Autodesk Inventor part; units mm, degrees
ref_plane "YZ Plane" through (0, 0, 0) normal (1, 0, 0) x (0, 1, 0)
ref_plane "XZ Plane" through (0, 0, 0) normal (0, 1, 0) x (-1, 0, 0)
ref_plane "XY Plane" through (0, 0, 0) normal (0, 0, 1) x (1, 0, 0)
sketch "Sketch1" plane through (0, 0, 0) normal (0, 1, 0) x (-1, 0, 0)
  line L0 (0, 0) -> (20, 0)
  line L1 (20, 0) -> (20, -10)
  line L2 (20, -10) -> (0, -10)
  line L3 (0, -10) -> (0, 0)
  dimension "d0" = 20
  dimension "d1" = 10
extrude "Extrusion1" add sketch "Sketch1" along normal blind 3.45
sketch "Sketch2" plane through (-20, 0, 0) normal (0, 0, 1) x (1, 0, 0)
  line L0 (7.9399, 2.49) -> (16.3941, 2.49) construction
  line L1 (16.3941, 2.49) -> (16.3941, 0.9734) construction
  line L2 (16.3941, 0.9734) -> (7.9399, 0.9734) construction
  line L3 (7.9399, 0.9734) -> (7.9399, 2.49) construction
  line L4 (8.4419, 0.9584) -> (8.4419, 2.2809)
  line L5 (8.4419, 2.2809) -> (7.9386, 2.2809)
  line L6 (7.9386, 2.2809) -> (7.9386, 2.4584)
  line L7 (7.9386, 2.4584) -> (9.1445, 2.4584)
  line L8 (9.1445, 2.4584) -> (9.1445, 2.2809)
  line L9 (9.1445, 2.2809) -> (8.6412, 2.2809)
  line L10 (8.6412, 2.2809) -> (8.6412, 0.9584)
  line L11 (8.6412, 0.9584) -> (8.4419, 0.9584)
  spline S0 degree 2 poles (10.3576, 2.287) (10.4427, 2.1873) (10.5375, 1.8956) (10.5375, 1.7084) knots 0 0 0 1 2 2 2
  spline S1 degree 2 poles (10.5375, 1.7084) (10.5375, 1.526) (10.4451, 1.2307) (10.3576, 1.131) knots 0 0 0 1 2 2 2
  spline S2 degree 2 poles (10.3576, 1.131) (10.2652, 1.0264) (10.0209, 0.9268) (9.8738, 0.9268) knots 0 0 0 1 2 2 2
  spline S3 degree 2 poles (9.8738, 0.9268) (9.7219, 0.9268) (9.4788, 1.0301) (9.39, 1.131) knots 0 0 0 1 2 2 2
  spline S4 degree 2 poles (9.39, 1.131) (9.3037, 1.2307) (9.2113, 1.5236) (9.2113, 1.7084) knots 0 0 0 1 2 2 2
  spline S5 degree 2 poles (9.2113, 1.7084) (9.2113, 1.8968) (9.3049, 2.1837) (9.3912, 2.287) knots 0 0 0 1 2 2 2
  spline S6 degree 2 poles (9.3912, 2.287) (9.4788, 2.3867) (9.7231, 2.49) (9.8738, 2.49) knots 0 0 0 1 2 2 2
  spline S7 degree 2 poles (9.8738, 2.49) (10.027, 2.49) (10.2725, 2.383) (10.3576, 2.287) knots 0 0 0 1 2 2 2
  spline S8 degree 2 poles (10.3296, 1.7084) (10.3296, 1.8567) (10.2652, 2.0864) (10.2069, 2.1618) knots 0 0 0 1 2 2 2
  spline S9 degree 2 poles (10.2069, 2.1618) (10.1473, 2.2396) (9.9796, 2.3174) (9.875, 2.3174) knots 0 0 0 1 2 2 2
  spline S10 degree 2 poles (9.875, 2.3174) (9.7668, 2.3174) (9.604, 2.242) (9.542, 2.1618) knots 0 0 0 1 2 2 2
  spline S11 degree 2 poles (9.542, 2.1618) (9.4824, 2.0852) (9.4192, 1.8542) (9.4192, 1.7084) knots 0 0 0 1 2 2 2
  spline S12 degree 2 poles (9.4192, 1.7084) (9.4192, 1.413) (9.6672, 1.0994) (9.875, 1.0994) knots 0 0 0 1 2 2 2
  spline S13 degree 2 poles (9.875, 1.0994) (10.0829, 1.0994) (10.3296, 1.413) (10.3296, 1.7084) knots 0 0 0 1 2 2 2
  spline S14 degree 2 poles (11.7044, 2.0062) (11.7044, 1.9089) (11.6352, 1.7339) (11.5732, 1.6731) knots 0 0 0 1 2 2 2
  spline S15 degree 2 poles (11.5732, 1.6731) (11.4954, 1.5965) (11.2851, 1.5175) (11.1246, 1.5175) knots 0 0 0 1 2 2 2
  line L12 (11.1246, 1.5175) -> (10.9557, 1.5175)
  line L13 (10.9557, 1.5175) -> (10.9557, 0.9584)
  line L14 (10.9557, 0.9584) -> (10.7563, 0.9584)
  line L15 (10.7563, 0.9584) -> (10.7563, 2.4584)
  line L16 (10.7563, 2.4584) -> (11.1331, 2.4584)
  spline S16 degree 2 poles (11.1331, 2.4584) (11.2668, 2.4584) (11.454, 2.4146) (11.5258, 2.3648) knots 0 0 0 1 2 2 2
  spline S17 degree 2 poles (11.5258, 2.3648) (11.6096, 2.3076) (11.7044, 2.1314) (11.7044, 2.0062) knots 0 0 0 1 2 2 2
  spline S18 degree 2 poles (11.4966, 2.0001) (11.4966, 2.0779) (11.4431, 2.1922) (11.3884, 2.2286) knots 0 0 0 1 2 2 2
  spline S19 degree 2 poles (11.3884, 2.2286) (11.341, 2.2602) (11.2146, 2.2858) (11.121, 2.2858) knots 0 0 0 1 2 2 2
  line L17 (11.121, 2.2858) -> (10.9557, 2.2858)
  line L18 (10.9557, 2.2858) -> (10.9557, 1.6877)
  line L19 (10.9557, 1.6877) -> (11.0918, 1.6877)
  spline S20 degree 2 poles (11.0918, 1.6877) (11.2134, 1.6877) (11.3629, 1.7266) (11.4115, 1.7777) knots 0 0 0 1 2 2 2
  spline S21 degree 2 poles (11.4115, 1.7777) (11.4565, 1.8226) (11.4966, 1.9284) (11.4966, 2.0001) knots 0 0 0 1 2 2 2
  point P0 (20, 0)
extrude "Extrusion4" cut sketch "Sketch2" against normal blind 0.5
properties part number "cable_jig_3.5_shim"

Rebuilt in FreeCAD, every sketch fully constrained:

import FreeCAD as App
import Part
import Sketcher
from FreeCAD import Vector
Q = App.Units.Quantity

doc = App.newDocument("Part")
params = doc.addObject("Spreadsheet::Sheet", "Params")
for row, (alias, value) in enumerate([
    ("sketch1_width", "20 mm"),
    ("sketch1_height", "10 mm"),
    ("pad1_length", "3.45 mm"),
    ("sketch2_height", "1.5 mm"),
    ("pocket1_length", "0.5 mm"),
], start=1):
    params.set(f"A{row}", alias)
    params.set(f"B{row}", "=" + value)
    params.setAlias(f"B{row}", alias)

body = doc.addObject("PartDesign::Body", "Body")

# Sketch on XZ plane
sketch1 = body.newObject("Sketcher::SketchObject", "Sketch")
sketch1.AttachmentSupport = (doc.getObject("XZ_Plane"), [""])
sketch1.MapMode = "FlatFace"
sketch1.addGeometry([
    Part.LineSegment(Vector(-20, 0, 0), Vector(0, 0, 0)),
    Part.LineSegment(Vector(0, 0, 0), Vector(0, -10, 0)),
    Part.LineSegment(Vector(0, -10, 0), Vector(-20, -10, 0)),
    Part.LineSegment(Vector(-20, -10, 0), Vector(-20, 0, 0)),
], False)
sketch1.addConstraint([
    Sketcher.Constraint("Coincident", 0, 2, 1, 1),
    Sketcher.Constraint("Coincident", 1, 2, 2, 1),
    Sketcher.Constraint("Coincident", 2, 2, 3, 1),
    Sketcher.Constraint("Coincident", 3, 2, 0, 1),
    Sketcher.Constraint("Horizontal", 0),
    Sketcher.Constraint("Vertical", 1),
    Sketcher.Constraint("Horizontal", 2),
    Sketcher.Constraint("Vertical", 3),
    Sketcher.Constraint("Coincident", 0, 2, -1, 1),
    Sketcher.Constraint("DistanceX", 0, 1, 0, 2, Q("20 mm")),
    Sketcher.Constraint("DistanceY", 1, 2, 1, 1, Q("10 mm")),
])
sketch1.setExpression("Constraints[9]", "Params.sketch1_width")
sketch1.setExpression("Constraints[10]", "Params.sketch1_height")
pad1 = body.newObject("PartDesign::Pad", "Pad")
pad1.Profile = sketch1
pad1.setExpression("Length", "Params.pad1_length")
pad1.Reversed = True

# Sketch on XY plane
sketch2 = body.newObject("Sketcher::SketchObject", "Sketch001")
sketch2.AttachmentSupport = (doc.getObject("XY_Plane"), [""])
sketch2.MapMode = "FlatFace"
sketch2.addGeometry([
    Part.LineSegment(Vector(-11.5581, 2.2809, 0), Vector(-11.5581, 0.9584, 0)),  # 0
    Part.LineSegment(Vector(-11.5581, 0.9584, 0), Vector(-11.3588, 0.9584, 0)),  # 1
    Part.LineSegment(Vector(-11.3588, 0.9584, 0), Vector(-11.3588, 2.2809, 0)),  # 2
    Part.LineSegment(Vector(-11.3588, 2.2809, 0), Vector(-10.8555, 2.2809, 0)),  # 3
    Part.LineSegment(Vector(-10.8555, 2.2809, 0), Vector(-10.8555, 2.4584, 0)),  # 4
    Part.LineSegment(Vector(-10.8555, 2.4584, 0), Vector(-12.0614, 2.4584, 0)),  # 5
    Part.LineSegment(Vector(-12.0614, 2.4584, 0), Vector(-12.0614, 2.2809, 0)),  # 6
    Part.LineSegment(Vector(-12.0614, 2.2809, 0), Vector(-11.5581, 2.2809, 0)),  # 7
    Part.BSplineCurve([Vector(-9.6424, 2.287, 0), Vector(-9.5573, 2.1873, 0), Vector(-9.4625, 1.8956, 0), Vector(-9.4625, 1.7084, 0)], [3, 1, 3], [0, 1, 2], False, 2, [1, 1, 1, 1], False),  # 8
    Part.BSplineCurve([Vector(-10.1262, 2.49, 0), Vector(-9.973, 2.49, 0), Vector(-9.7275, 2.383, 0), Vector(-9.6424, 2.287, 0)], [3, 1, 3], [0, 1, 2], False, 2, [1, 1, 1, 1], False),  # 9
    Part.BSplineCurve([Vector(-10.6088, 2.287, 0), Vector(-10.5212, 2.3867, 0), Vector(-10.2769, 2.49, 0), Vector(-10.1262, 2.49, 0)], [3, 1, 3], [0, 1, 2], False, 2, [1, 1, 1, 1], False),  # 10
    Part.BSplineCurve([Vector(-10.7887, 1.7084, 0), Vector(-10.7887, 1.8968, 0), Vector(-10.6951, 2.1837, 0), Vector(-10.6088, 2.287, 0)], [3, 1, 3], [0, 1, 2], False, 2, [1, 1, 1, 1], False),  # 11
    Part.BSplineCurve([Vector(-10.61, 1.131, 0), Vector(-10.6963, 1.2307, 0), Vector(-10.7887, 1.5236, 0), Vector(-10.7887, 1.7084, 0)], [3, 1, 3], [0, 1, 2], False, 2, [1, 1, 1, 1], False),  # 12
    Part.BSplineCurve([Vector(-10.1262, 0.9268, 0), Vector(-10.2781, 0.9268, 0), Vector(-10.5212, 1.0301, 0), Vector(-10.61, 1.131, 0)], [3, 1, 3], [0, 1, 2], False, 2, [1, 1, 1, 1], False),  # 13
    Part.BSplineCurve([Vector(-9.6424, 1.131, 0), Vector(-9.7348, 1.0264, 0), Vector(-9.9791, 0.9268, 0), Vector(-10.1262, 0.9268, 0)], [3, 1, 3], [0, 1, 2], False, 2, [1, 1, 1, 1], False),  # 14
    Part.BSplineCurve([Vector(-9.4625, 1.7084, 0), Vector(-9.4625, 1.526, 0), Vector(-9.5549, 1.2307, 0), Vector(-9.6424, 1.131, 0)], [3, 1, 3], [0, 1, 2], False, 2, [1, 1, 1, 1], False),  # 15
    Part.BSplineCurve([Vector(-9.6704, 1.7084, 0), Vector(-9.6704, 1.8567, 0), Vector(-9.7348, 2.0864, 0), Vector(-9.7931, 2.1618, 0)], [3, 1, 3], [0, 1, 2], False, 2, [1, 1, 1, 1], False),  # 16
    Part.BSplineCurve([Vector(-10.125, 1.0994, 0), Vector(-9.9171, 1.0994, 0), Vector(-9.6704, 1.413, 0), Vector(-9.6704, 1.7084, 0)], [3, 1, 3], [0, 1, 2], False, 2, [1, 1, 1, 1], False),  # 17
    Part.BSplineCurve([Vector(-10.5808, 1.7084, 0), Vector(-10.5808, 1.413, 0), Vector(-10.3328, 1.0994, 0), Vector(-10.125, 1.0994, 0)], [3, 1, 3], [0, 1, 2], False, 2, [1, 1, 1, 1], False),  # 18
    Part.BSplineCurve([Vector(-10.458, 2.1618, 0), Vector(-10.5176, 2.0852, 0), Vector(-10.5808, 1.8542, 0), Vector(-10.5808, 1.7084, 0)], [3, 1, 3], [0, 1, 2], False, 2, [1, 1, 1, 1], False),  # 19
    Part.BSplineCurve([Vector(-10.125, 2.3174, 0), Vector(-10.2332, 2.3174, 0), Vector(-10.396, 2.242, 0), Vector(-10.458, 2.1618, 0)], [3, 1, 3], [0, 1, 2], False, 2, [1, 1, 1, 1], False),  # 20
    Part.BSplineCurve([Vector(-9.7931, 2.1618, 0), Vector(-9.8527, 2.2396, 0), Vector(-10.0204, 2.3174, 0), Vector(-10.125, 2.3174, 0)], [3, 1, 3], [0, 1, 2], False, 2, [1, 1, 1, 1], False),  # 21
    Part.BSplineCurve([Vector(-8.2956, 2.0062, 0), Vector(-8.2956, 1.9089, 0), Vector(-8.3648, 1.7339, 0), Vector(-8.4268, 1.6731, 0)], [3, 1, 3], [0, 1, 2], False, 2, [1, 1, 1, 1], False),  # 22
    Part.BSplineCurve([Vector(-8.4742, 2.3648, 0), Vector(-8.3904, 2.3076, 0), Vector(-8.2956, 2.1314, 0), Vector(-8.2956, 2.0062, 0)], [3, 1, 3], [0, 1, 2], False, 2, [1, 1, 1, 1], False),  # 23
    Part.BSplineCurve([Vector(-8.8669, 2.4584, 0), Vector(-8.7332, 2.4584, 0), Vector(-8.546, 2.4146, 0), Vector(-8.4742, 2.3648, 0)], [3, 1, 3], [0, 1, 2], False, 2, [1, 1, 1, 1], False),  # 24
    Part.LineSegment(Vector(-8.8669, 2.4584, 0), Vector(-9.2437, 2.4584, 0)),  # 25
    Part.LineSegment(Vector(-9.2437, 2.4584, 0), Vector(-9.2437, 0.9584, 0)),  # 26
    Part.LineSegment(Vector(-9.2437, 0.9584, 0), Vector(-9.0443, 0.9584, 0)),  # 27
    Part.LineSegment(Vector(-9.0443, 0.9584, 0), Vector(-9.0443, 1.5175, 0)),  # 28
    Part.LineSegment(Vector(-9.0443, 1.5175, 0), Vector(-8.8754, 1.5175, 0)),  # 29
    Part.BSplineCurve([Vector(-8.4268, 1.6731, 0), Vector(-8.5046, 1.5965, 0), Vector(-8.7149, 1.5175, 0), Vector(-8.8754, 1.5175, 0)], [3, 1, 3], [0, 1, 2], False, 2, [1, 1, 1, 1], False),  # 30
    Part.BSplineCurve([Vector(-8.5034, 2.0001, 0), Vector(-8.5034, 2.0779, 0), Vector(-8.5569, 2.1922, 0), Vector(-8.6116, 2.2286, 0)], [3, 1, 3], [0, 1, 2], False, 2, [1, 1, 1, 1], False),  # 31
    Part.BSplineCurve([Vector(-8.5885, 1.7777, 0), Vector(-8.5435, 1.8226, 0), Vector(-8.5034, 1.9284, 0), Vector(-8.5034, 2.0001, 0)], [3, 1, 3], [0, 1, 2], False, 2, [1, 1, 1, 1], False),  # 32
    Part.BSplineCurve([Vector(-8.9082, 1.6877, 0), Vector(-8.7866, 1.6877, 0), Vector(-8.6371, 1.7266, 0), Vector(-8.5885, 1.7777, 0)], [3, 1, 3], [0, 1, 2], False, 2, [1, 1, 1, 1], False),  # 33
    Part.LineSegment(Vector(-8.9082, 1.6877, 0), Vector(-9.0443, 1.6877, 0)),  # 34
    Part.LineSegment(Vector(-9.0443, 1.6877, 0), Vector(-9.0443, 2.2858, 0)),  # 35
    Part.LineSegment(Vector(-9.0443, 2.2858, 0), Vector(-8.879, 2.2858, 0)),  # 36
    Part.BSplineCurve([Vector(-8.6116, 2.2286, 0), Vector(-8.659, 2.2602, 0), Vector(-8.7854, 2.2858, 0), Vector(-8.879, 2.2858, 0)], [3, 1, 3], [0, 1, 2], False, 2, [1, 1, 1, 1], False),  # 37
], False)
sketch2.addConstraint([
    Sketcher.Constraint("Block", 8),
    Sketcher.Constraint("Block", 9),
    Sketcher.Constraint("Block", 10),
    Sketcher.Constraint("Block", 11),
    Sketcher.Constraint("Block", 12),
    Sketcher.Constraint("Block", 13),
    Sketcher.Constraint("Block", 14),
    Sketcher.Constraint("Block", 15),
    Sketcher.Constraint("Block", 16),
    Sketcher.Constraint("Block", 17),
    Sketcher.Constraint("Block", 18),
    Sketcher.Constraint("Block", 19),
    Sketcher.Constraint("Block", 20),
    Sketcher.Constraint("Block", 21),
    Sketcher.Constraint("Block", 22),
    Sketcher.Constraint("Block", 23),
    Sketcher.Constraint("Block", 24),
    Sketcher.Constraint("Block", 30),
    Sketcher.Constraint("Block", 31),
    Sketcher.Constraint("Block", 32),
    Sketcher.Constraint("Block", 33),
    Sketcher.Constraint("Block", 37),
    Sketcher.Constraint("Coincident", 0, 2, 1, 1),
    Sketcher.Constraint("Coincident", 1, 2, 2, 1),
    Sketcher.Constraint("Coincident", 2, 2, 3, 1),
    Sketcher.Constraint("Coincident", 3, 2, 4, 1),
    Sketcher.Constraint("Coincident", 4, 2, 5, 1),
    Sketcher.Constraint("Coincident", 5, 2, 6, 1),
    Sketcher.Constraint("Coincident", 6, 2, 7, 1),
    Sketcher.Constraint("Coincident", 7, 2, 0, 1),
    Sketcher.Constraint("Coincident", 24, 1, 25, 1),
    Sketcher.Constraint("Coincident", 25, 2, 26, 1),
    Sketcher.Constraint("Coincident", 26, 2, 27, 1),
    Sketcher.Constraint("Coincident", 27, 2, 28, 1),
    Sketcher.Constraint("Coincident", 28, 2, 29, 1),
    Sketcher.Constraint("Coincident", 29, 2, 30, 2),
    Sketcher.Constraint("Coincident", 33, 1, 34, 1),
    Sketcher.Constraint("Coincident", 34, 2, 35, 1),
    Sketcher.Constraint("Coincident", 35, 2, 36, 1),
    Sketcher.Constraint("Coincident", 36, 2, 37, 2),
    Sketcher.Constraint("Vertical", 0),
    Sketcher.Constraint("Horizontal", 1),
    Sketcher.Constraint("Vertical", 2),
    Sketcher.Constraint("Horizontal", 3),
    Sketcher.Constraint("Vertical", 4),
    Sketcher.Constraint("Horizontal", 5),
    Sketcher.Constraint("Vertical", 6),
    Sketcher.Constraint("Horizontal", 7),
    Sketcher.Constraint("Horizontal", 25),
    Sketcher.Constraint("Vertical", 26),
    Sketcher.Constraint("Horizontal", 27),
    Sketcher.Constraint("Vertical", 28),
    Sketcher.Constraint("Horizontal", 29),
    Sketcher.Constraint("Horizontal", 34),
    Sketcher.Constraint("Vertical", 35),
    Sketcher.Constraint("Horizontal", 36),
    Sketcher.Constraint("Horizontal", 3, 2, 6, 2),
    Sketcher.Constraint("Horizontal", 5, 2, 25, 2),
    Sketcher.Constraint("Horizontal", 1, 2, 26, 2),
    Sketcher.Constraint("Vertical", 28, 2, 34, 2),
    Sketcher.Constraint("Equal", 3, 7),
    Sketcher.Constraint("Equal", 1, 27),
    Sketcher.Constraint("DistanceY", 26, 2, 26, 1, Q("1.5 mm")),
    Sketcher.Constraint("DistanceX", 5, 2, 5, 1, Q("1.206 mm")),
    Sketcher.Constraint("DistanceX", 29, 1, 29, 2, Q("0.169 mm")),
    Sketcher.Constraint("DistanceX", 3, 2, 29, 2, Q("1.98 mm")),
    Sketcher.Constraint("DistanceX", 1, 1, 1, 2, Q("0.1993 mm")),
    Sketcher.Constraint("DistanceY", 0, 2, 0, 1, Q("1.3225 mm")),
])
sketch2.setExpression("Constraints[62]", "Params.sketch2_height")
pocket1 = body.newObject("PartDesign::Pocket", "Pocket")
pocket1.Profile = sketch2
pocket1.setExpression("Length", "Params.pocket1_length")

doc.recompute()
